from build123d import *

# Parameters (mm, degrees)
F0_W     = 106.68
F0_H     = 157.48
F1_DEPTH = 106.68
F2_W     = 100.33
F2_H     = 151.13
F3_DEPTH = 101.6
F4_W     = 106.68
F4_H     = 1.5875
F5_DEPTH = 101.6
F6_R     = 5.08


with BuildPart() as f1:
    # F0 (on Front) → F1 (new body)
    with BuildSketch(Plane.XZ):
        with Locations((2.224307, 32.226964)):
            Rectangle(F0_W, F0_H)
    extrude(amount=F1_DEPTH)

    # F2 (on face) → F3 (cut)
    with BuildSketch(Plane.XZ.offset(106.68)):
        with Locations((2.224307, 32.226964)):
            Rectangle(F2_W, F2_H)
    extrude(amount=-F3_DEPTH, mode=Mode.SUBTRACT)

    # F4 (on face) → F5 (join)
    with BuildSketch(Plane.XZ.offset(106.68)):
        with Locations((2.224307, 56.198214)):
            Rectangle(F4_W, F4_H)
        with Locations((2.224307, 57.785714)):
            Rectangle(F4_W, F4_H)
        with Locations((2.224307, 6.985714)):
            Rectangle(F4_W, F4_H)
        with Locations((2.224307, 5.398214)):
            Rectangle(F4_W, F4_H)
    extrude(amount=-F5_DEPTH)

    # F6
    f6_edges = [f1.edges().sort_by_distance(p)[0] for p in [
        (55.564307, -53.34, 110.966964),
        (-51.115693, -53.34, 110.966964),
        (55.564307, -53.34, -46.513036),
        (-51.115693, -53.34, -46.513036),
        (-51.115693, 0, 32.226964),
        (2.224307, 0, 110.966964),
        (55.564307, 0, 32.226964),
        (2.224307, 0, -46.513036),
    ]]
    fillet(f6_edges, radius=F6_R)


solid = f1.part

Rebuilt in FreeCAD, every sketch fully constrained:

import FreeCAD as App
import Part
import Sketcher
from FreeCAD import Vector
Q = App.Units.Quantity


def edges_at(feature, points):
    """Names of the edges that pass closest to the given points."""
    edges = feature.Shape.Edges
    near = lambda p: min(range(len(edges)), key=lambda i: edges[i].distToShape(Part.Vertex(*p))[0])
    return sorted({f"Edge{near(p) + 1}" for p in points})

doc = App.newDocument("Part")
body = doc.addObject("PartDesign::Body", "Body")

# Sketch on XZ plane
sketch1 = body.newObject("Sketcher::SketchObject", "Sketch")
sketch1.AttachmentSupport = (doc.getObject("XZ_Plane"), [""])
sketch1.MapMode = "FlatFace"
sketch1.addGeometry([
    Part.LineSegment(Vector(-51, 111, 0), Vector(-51, -47, 0)),
    Part.LineSegment(Vector(-51, -47, 0), Vector(56, -47, 0)),
    Part.LineSegment(Vector(56, -47, 0), Vector(56, 111, 0)),
    Part.LineSegment(Vector(56, 111, 0), Vector(-51, 111, 0)),
], False)
sketch1.addConstraint([
    Sketcher.Constraint("Coincident", 0, 2, 1, 1),
    Sketcher.Constraint("Coincident", 1, 2, 2, 1),
    Sketcher.Constraint("Coincident", 2, 2, 3, 1),
    Sketcher.Constraint("Coincident", 3, 2, 0, 1),
    Sketcher.Constraint("Vertical", 0),
    Sketcher.Constraint("Horizontal", 1),
    Sketcher.Constraint("Vertical", 2),
    Sketcher.Constraint("Horizontal", 3),
    Sketcher.Constraint("DistanceX", 1, 1, 1, 2, Q("4.2 in")),
    Sketcher.Constraint("DistanceY", 0, 2, 0, 1, Q("6.2 in")),
    Sketcher.Constraint("DistanceX", 0, 2, -1, 1, 51.115693),
    Sketcher.Constraint("DistanceY", 0, 2, -1, 1, 46.513036),
])
pad1 = body.newObject("PartDesign::Pad", "Pad")
pad1.Profile = sketch1
pad1.Length = Q("4.2 in")

# Sketch on XZ plane
sketch2 = body.newObject("Sketcher::SketchObject", "Sketch001")
sketch2.AttachmentSupport = (doc.getObject("XZ_Plane"), [""])
sketch2.MapMode = "FlatFace"
sketch2.AttachmentOffset = App.Placement(Vector(0, 0, 4.2 * 25.4), App.Rotation())
sketch2.addGeometry([
    Part.LineSegment(Vector(-48, 108, 0), Vector(-48, -43, 0)),
    Part.LineSegment(Vector(-48, -43, 0), Vector(52, -43, 0)),
    Part.LineSegment(Vector(52, -43, 0), Vector(52, 108, 0)),
    Part.LineSegment(Vector(52, 108, 0), Vector(-48, 108, 0)),
], False)
sketch2.addConstraint([
    Sketcher.Constraint("Coincident", 0, 2, 1, 1),
    Sketcher.Constraint("Coincident", 1, 2, 2, 1),
    Sketcher.Constraint("Coincident", 2, 2, 3, 1),
    Sketcher.Constraint("Coincident", 3, 2, 0, 1),
    Sketcher.Constraint("Vertical", 0),
    Sketcher.Constraint("Horizontal", 1),
    Sketcher.Constraint("Vertical", 2),
    Sketcher.Constraint("Horizontal", 3),
    Sketcher.Constraint("DistanceX", 1, 1, 1, 2, Q("3.95 in")),
    Sketcher.Constraint("DistanceY", 0, 2, 0, 1, Q("5.95 in")),
    Sketcher.Constraint("DistanceX", 0, 2, -1, 1, 47.940693),
    Sketcher.Constraint("DistanceY", 0, 2, -1, 1, 43.338036),
])
pocket1 = body.newObject("PartDesign::Pocket", "Pocket")
pocket1.Profile = sketch2
pocket1.Length = Q("4 in")

# Sketch on XZ plane
sketch3 = body.newObject("Sketcher::SketchObject", "Sketch002")
sketch3.AttachmentSupport = (doc.getObject("XZ_Plane"), [""])
sketch3.MapMode = "FlatFace"
sketch3.AttachmentOffset = App.Placement(Vector(0, 0, 4.2 * 25.4), App.Rotation())
sketch3.addGeometry([
    Part.LineSegment(Vector(-51.1, 55.4, 0), Vector(55.6, 55.4, 0)),  # 0
    Part.LineSegment(Vector(55.6, 55.4, 0), Vector(55.6, 58.6, 0)),  # 1
    Part.LineSegment(Vector(55.6, 58.6, 0), Vector(-51.1, 58.6, 0)),  # 2
    Part.LineSegment(Vector(-51.1, 58.6, 0), Vector(-51.1, 55.4, 0)),  # 3
    Part.LineSegment(Vector(-51.1, 7.8, 0), Vector(-51.1, 4.6, 0)),  # 4
    Part.LineSegment(Vector(-51.1, 4.6, 0), Vector(55.6, 4.6, 0)),  # 5
    Part.LineSegment(Vector(55.6, 4.6, 0), Vector(55.6, 7.8, 0)),  # 6
    Part.LineSegment(Vector(55.6, 7.8, 0), Vector(-51.1, 7.8, 0)),  # 7
], False)
sketch3.addConstraint([
    Sketcher.Constraint("Coincident", 0, 2, 1, 1),
    Sketcher.Constraint("Coincident", 1, 2, 2, 1),
    Sketcher.Constraint("Coincident", 2, 2, 3, 1),
    Sketcher.Constraint("Coincident", 3, 2, 0, 1),
    Sketcher.Constraint("Coincident", 4, 2, 5, 1),
    Sketcher.Constraint("Coincident", 5, 2, 6, 1),
    Sketcher.Constraint("Coincident", 6, 2, 7, 1),
    Sketcher.Constraint("Coincident", 7, 2, 4, 1),
    Sketcher.Constraint("Horizontal", 0),
    Sketcher.Constraint("Vertical", 1),
    Sketcher.Constraint("Horizontal", 2),
    Sketcher.Constraint("Vertical", 3),
    Sketcher.Constraint("Vertical", 4),
    Sketcher.Constraint("Horizontal", 5),
    Sketcher.Constraint("Vertical", 6),
    Sketcher.Constraint("Horizontal", 7),
    Sketcher.Constraint("Vertical", 3, 2, 4, 2),
    Sketcher.Constraint("Vertical", 1, 2, 5, 2),
    Sketcher.Constraint("Equal", 3, 4),
    Sketcher.Constraint("DistanceX", 0, 1, 0, 2, Q("4.2 in")),
    Sketcher.Constraint("DistanceY", 4, 2, 3, 2, Q("2 in")),
    Sketcher.Constraint("DistanceY", 1, 1, 1, 2, Q("0.125 in")),
    Sketcher.Constraint("DistanceX", -1, 1, 0, 2, 55.564307),
    Sketcher.Constraint("DistanceY", -1, 1, 0, 2, 55.404464),
])
pad2 = body.newObject("PartDesign::Pad", "Pad001")
pad2.Profile = sketch3
pad2.Length = Q("4 in")
pad2.Reversed = True
doc.recompute()

fillet = body.newObject("PartDesign::Fillet", "Fillet")
fillet.Base = (pad2, edges_at(pad2, [
    (55.564, -53.34, 110.967),
    (-51.116, -53.34, 110.967),
    (55.564, -53.34, -46.513),
    (-51.116, -53.34, -46.513),
    (-51.116, 0, 32.227),
    (2.224, 0, 110.967),
    (55.564, 0, 32.227),
    (2.224, 0, -46.513),
]))
fillet.Radius = Q("0.2 in")

doc.recompute()
